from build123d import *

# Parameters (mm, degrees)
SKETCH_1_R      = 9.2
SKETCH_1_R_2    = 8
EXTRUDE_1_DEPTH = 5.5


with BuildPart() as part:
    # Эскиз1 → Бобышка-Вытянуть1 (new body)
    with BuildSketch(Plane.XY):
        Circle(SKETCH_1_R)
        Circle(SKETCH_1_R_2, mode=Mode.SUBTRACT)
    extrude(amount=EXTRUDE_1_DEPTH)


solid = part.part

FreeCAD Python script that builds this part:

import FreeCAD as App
import Part
import Sketcher
from FreeCAD import Vector
Q = App.Units.Quantity

doc = App.newDocument("Part")
params = doc.addObject("Spreadsheet::Sheet", "Params")
for row, (alias, value) in enumerate([
    ("sketch1_diameter", "16 mm"),
    ("sketch1_diameter2", "18.4 mm"),
    ("pad1_length", "5.5 mm"),
], start=1):
    params.set(f"A{row}", alias)
    params.set(f"B{row}", "=" + value)
    params.setAlias(f"B{row}", alias)

body = doc.addObject("PartDesign::Body", "Body")

sketch1 = doc.addObject("Sketcher::SketchObject", "Sketch")
body.addObject(sketch1)
sketch1.AttachmentSupport = (doc.XY_Plane, [""])
sketch1.MapMode = "FlatFace"
sketch1.addGeometry(Part.Circle(Vector(0, 0, 0), Vector(0, 0, 1), 9.2), False)
sketch1.addGeometry(Part.Circle(Vector(0, 0, 0), Vector(0, 0, 1), 8), False)
sketch1.addConstraint(Sketcher.Constraint("Coincident", 0, 3, -1, 1))
sketch1.addConstraint(Sketcher.Constraint("Coincident", 1, 3, -1, 1))
sketch1.addConstraint(Sketcher.Constraint("Diameter", 1, Q("16 mm")))
sketch1.addConstraint(Sketcher.Constraint("Diameter", 0, Q("18.4 mm")))
sketch1.setExpression("Constraints[2]", "Params.sketch1_diameter")
sketch1.setExpression("Constraints[3]", "Params.sketch1_diameter2")
pad1 = doc.addObject("PartDesign::Pad", "Pad")
body.addObject(pad1)
pad1.Profile = sketch1
pad1.setExpression("Length", "Params.pad1_length")

doc.recompute()
